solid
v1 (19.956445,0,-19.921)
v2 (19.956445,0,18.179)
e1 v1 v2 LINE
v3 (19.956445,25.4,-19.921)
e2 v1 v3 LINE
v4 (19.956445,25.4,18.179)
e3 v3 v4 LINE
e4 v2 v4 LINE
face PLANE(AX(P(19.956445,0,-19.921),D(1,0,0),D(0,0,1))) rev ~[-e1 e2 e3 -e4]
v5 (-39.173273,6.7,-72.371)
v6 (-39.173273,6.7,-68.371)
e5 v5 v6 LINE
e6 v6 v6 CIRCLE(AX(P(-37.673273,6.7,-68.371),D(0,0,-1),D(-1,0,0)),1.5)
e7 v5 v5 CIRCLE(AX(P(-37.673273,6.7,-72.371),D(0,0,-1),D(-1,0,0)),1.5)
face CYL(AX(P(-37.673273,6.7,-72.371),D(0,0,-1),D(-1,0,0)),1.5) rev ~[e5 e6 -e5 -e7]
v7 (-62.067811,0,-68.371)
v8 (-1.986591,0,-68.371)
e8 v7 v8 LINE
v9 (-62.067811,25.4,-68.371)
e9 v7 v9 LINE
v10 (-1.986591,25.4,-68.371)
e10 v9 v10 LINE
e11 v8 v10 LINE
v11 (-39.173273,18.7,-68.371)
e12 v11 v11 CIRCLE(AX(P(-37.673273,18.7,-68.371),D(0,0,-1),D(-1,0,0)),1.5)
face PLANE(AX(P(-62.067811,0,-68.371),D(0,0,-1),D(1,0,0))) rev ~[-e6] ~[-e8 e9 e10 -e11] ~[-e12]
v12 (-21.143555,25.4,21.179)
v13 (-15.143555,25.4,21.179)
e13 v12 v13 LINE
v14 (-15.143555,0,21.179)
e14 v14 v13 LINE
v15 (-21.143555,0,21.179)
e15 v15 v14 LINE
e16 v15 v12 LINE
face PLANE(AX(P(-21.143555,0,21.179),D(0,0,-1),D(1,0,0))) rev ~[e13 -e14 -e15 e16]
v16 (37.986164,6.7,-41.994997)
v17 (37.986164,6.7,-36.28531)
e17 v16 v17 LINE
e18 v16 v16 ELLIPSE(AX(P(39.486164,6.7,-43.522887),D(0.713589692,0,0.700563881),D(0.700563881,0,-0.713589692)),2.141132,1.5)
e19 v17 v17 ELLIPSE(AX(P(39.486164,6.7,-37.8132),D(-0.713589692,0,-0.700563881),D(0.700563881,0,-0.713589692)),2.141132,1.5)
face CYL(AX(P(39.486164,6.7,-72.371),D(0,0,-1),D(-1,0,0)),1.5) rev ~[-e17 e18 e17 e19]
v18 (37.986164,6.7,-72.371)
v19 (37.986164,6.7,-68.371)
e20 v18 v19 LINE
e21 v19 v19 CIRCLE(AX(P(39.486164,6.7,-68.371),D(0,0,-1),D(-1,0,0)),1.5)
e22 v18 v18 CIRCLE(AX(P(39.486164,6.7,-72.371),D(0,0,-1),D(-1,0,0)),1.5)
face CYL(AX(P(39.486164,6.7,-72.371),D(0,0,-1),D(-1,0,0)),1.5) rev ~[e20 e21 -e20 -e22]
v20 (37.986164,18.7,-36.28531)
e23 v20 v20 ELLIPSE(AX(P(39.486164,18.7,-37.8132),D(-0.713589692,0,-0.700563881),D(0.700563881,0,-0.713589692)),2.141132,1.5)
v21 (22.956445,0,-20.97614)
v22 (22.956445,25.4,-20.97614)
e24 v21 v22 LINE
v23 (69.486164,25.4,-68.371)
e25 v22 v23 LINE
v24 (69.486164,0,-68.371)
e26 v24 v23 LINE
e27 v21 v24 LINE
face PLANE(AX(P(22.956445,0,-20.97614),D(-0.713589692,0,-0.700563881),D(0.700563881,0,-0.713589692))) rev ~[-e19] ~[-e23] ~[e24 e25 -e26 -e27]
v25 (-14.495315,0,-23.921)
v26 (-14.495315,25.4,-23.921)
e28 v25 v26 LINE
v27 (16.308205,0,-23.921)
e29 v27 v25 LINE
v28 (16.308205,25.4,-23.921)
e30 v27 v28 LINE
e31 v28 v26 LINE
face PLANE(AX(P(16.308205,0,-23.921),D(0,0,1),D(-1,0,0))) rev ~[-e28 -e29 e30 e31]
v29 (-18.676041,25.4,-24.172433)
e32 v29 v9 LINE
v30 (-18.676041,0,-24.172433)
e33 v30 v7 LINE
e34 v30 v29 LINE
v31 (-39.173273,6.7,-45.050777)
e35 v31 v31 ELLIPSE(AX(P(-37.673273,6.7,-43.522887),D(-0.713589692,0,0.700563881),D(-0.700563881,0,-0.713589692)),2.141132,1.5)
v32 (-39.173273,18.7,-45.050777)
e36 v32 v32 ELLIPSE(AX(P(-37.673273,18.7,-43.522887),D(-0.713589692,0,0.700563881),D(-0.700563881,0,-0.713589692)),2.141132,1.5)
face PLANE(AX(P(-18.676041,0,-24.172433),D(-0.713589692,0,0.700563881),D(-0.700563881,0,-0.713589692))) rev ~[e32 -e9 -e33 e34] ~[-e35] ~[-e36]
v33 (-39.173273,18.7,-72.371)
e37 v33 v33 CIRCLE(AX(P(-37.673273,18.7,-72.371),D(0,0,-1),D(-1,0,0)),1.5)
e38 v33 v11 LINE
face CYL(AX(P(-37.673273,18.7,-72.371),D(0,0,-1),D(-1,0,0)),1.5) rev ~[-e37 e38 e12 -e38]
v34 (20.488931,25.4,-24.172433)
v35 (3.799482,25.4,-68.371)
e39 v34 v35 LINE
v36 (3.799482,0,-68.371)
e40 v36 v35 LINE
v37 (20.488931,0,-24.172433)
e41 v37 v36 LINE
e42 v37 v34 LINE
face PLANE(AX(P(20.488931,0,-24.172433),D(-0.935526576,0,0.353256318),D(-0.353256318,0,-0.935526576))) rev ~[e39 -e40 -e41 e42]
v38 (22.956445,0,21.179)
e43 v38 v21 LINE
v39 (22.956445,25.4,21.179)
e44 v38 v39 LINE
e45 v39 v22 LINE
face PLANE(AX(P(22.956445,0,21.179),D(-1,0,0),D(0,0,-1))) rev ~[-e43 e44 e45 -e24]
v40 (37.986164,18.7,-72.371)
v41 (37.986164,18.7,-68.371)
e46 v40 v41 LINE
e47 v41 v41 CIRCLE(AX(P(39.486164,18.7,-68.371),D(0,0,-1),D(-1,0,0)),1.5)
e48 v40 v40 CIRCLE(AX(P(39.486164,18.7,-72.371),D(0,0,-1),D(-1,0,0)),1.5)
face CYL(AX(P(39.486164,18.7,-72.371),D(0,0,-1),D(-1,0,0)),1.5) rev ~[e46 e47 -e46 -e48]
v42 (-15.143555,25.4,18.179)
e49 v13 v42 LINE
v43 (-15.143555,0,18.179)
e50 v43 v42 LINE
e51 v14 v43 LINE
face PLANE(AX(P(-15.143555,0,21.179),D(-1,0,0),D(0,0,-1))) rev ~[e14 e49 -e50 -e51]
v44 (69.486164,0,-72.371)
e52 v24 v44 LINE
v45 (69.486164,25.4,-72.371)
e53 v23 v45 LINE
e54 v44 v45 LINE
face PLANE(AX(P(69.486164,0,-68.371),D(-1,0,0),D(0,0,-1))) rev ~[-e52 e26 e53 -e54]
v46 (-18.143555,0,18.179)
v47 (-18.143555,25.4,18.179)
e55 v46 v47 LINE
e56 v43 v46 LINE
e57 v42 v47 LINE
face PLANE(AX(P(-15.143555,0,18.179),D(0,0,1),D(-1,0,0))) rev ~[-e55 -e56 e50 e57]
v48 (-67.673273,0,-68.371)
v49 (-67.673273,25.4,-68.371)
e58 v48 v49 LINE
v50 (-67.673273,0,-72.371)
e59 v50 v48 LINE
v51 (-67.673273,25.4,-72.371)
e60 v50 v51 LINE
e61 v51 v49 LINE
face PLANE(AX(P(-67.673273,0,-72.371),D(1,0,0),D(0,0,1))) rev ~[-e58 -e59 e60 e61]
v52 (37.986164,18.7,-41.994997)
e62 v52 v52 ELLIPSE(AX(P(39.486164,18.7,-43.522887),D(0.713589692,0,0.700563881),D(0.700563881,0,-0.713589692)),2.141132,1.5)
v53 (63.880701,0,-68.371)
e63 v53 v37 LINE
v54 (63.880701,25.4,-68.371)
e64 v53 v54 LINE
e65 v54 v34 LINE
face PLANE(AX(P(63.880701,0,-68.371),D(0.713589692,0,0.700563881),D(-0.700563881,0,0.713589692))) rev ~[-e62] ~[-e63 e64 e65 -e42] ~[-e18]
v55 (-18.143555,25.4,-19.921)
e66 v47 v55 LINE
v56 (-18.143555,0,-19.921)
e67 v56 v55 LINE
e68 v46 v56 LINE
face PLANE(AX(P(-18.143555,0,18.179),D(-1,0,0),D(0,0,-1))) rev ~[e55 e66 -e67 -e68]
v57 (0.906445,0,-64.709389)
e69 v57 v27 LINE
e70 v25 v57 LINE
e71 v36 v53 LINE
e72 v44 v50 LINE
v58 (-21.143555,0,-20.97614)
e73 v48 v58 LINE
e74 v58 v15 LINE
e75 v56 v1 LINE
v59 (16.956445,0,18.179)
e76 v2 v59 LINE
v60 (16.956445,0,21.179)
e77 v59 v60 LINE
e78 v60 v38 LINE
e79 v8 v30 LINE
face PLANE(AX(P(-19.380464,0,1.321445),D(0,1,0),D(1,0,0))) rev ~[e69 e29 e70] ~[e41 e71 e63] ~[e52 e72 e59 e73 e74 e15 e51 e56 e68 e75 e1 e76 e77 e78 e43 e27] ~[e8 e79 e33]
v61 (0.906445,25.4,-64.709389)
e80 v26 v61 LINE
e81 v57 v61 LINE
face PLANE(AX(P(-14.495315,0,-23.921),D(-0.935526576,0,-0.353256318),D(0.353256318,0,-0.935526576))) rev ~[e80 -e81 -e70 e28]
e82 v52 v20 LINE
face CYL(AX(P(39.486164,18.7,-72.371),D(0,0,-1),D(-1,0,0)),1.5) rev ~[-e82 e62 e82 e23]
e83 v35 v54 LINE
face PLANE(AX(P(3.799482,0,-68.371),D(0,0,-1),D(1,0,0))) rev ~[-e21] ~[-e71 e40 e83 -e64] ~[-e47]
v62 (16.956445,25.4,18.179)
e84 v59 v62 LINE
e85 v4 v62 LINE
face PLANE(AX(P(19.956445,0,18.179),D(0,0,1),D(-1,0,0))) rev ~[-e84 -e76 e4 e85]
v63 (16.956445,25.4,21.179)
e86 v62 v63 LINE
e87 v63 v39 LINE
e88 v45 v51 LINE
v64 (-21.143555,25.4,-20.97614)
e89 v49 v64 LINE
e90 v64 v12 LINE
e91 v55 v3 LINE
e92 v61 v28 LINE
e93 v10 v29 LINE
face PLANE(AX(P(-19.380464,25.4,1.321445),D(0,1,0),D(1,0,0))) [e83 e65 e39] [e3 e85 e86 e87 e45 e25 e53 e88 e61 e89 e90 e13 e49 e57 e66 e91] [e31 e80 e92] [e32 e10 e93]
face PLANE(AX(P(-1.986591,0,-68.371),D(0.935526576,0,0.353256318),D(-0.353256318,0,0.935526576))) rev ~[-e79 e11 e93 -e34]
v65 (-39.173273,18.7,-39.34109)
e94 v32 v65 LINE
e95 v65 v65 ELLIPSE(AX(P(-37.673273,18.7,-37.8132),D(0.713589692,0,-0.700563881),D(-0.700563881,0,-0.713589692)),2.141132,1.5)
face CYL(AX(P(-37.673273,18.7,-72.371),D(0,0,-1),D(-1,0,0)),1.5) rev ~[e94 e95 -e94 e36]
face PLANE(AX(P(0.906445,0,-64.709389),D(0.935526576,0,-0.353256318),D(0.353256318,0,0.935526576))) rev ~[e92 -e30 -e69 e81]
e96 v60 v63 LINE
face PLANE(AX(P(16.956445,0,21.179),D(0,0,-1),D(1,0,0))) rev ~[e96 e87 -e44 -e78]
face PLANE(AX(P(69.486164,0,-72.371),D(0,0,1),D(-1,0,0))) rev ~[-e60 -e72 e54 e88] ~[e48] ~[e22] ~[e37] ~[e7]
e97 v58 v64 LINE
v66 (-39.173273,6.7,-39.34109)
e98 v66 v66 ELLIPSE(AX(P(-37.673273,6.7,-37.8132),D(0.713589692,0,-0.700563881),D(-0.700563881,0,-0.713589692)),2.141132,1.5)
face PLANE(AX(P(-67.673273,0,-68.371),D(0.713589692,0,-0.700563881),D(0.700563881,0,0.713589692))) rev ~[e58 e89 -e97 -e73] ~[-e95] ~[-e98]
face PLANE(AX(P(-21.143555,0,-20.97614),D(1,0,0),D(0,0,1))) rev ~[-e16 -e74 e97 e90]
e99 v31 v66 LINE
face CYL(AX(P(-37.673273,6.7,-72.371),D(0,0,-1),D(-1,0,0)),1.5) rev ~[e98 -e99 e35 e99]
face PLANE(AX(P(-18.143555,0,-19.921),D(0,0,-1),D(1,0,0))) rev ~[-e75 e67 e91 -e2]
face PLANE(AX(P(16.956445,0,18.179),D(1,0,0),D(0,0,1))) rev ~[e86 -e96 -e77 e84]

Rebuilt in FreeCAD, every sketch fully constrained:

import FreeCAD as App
import Part
import Sketcher
Q = App.Units.Quantity

doc = App.newDocument("Part")
body = doc.addObject("PartDesign::Body", "Body")

# Sketch on XZ plane
sketch1 = body.newObject("Sketcher::SketchObject", "Sketch")
sketch1.AttachmentSupport = (doc.getObject("XZ_Plane"), [""])
sketch1.MapMode = "FlatFace"
sketch1.addGeometry([
    Part.LineSegment(App.Vector(-67.7, -72.4, 0), App.Vector(-67.7, -68.4, 0)),  # 0
    Part.LineSegment(App.Vector(-67.7, -68.4, 0), App.Vector(-21.1, -21, 0)),  # 1
    Part.LineSegment(App.Vector(-21.1, -21, 0), App.Vector(-21.1, 21.2, 0)),  # 2
    Part.LineSegment(App.Vector(-21.1, 21.2, 0), App.Vector(-15.1, 21.2, 0)),  # 3
    Part.LineSegment(App.Vector(-15.1, 21.2, 0), App.Vector(-15.1, 18.2, 0)),  # 4
    Part.LineSegment(App.Vector(-15.1, 18.2, 0), App.Vector(-18.1, 18.2, 0)),  # 5
    Part.LineSegment(App.Vector(-18.1, 18.2, 0), App.Vector(-18.1, -19.9, 0)),  # 6
    Part.LineSegment(App.Vector(-18.1, -19.9, 0), App.Vector(20, -19.9, 0)),  # 7
    Part.LineSegment(App.Vector(20, -19.9, 0), App.Vector(20, 18.2, 0)),  # 8
    Part.LineSegment(App.Vector(20, 18.2, 0), App.Vector(17, 18.2, 0)),  # 9
    Part.LineSegment(App.Vector(17, 18.2, 0), App.Vector(17, 21.2, 0)),  # 10
    Part.LineSegment(App.Vector(17, 21.2, 0), App.Vector(23, 21.2, 0)),  # 11
    Part.LineSegment(App.Vector(23, 21.2, 0), App.Vector(23, -21, 0)),  # 12
    Part.LineSegment(App.Vector(23, -21, 0), App.Vector(69.5, -68.4, 0)),  # 13
    Part.LineSegment(App.Vector(69.5, -68.4, 0), App.Vector(69.5, -72.4, 0)),  # 14
    Part.LineSegment(App.Vector(69.5, -72.4, 0), App.Vector(-67.7, -72.4, 0)),  # 15
    Part.LineSegment(App.Vector(-14.5, -23.9, 0), App.Vector(0.9, -64.7, 0)),  # 16
    Part.LineSegment(App.Vector(0.9, -64.7, 0), App.Vector(16.3, -23.9, 0)),  # 17
    Part.LineSegment(App.Vector(16.3, -23.9, 0), App.Vector(-14.5, -23.9, 0)),  # 18
    Part.LineSegment(App.Vector(-18.7, -24.2, 0), App.Vector(-62.1, -68.4, 0)),  # 19
    Part.LineSegment(App.Vector(-62.1, -68.4, 0), App.Vector(-2, -68.4, 0)),  # 20
    Part.LineSegment(App.Vector(-2, -68.4, 0), App.Vector(-18.7, -24.2, 0)),  # 21
    Part.LineSegment(App.Vector(63.9, -68.4, 0), App.Vector(20.5, -24.2, 0)),  # 22
    Part.LineSegment(App.Vector(20.5, -24.2, 0), App.Vector(3.8, -68.4, 0)),  # 23
    Part.LineSegment(App.Vector(3.8, -68.4, 0), App.Vector(63.9, -68.4, 0)),  # 24
], False)
sketch1.addConstraint([
    Sketcher.Constraint("Coincident", 0, 2, 1, 1),
    Sketcher.Constraint("Coincident", 1, 2, 2, 1),
    Sketcher.Constraint("Coincident", 2, 2, 3, 1),
    Sketcher.Constraint("Coincident", 3, 2, 4, 1),
    Sketcher.Constraint("Coincident", 4, 2, 5, 1),
    Sketcher.Constraint("Coincident", 5, 2, 6, 1),
    Sketcher.Constraint("Coincident", 6, 2, 7, 1),
    Sketcher.Constraint("Coincident", 7, 2, 8, 1),
    Sketcher.Constraint("Coincident", 8, 2, 9, 1),
    Sketcher.Constraint("Coincident", 9, 2, 10, 1),
    Sketcher.Constraint("Coincident", 10, 2, 11, 1),
    Sketcher.Constraint("Coincident", 11, 2, 12, 1),
    Sketcher.Constraint("Coincident", 12, 2, 13, 1),
    Sketcher.Constraint("Coincident", 13, 2, 14, 1),
    Sketcher.Constraint("Coincident", 14, 2, 15, 1),
    Sketcher.Constraint("Coincident", 15, 2, 0, 1),
    Sketcher.Constraint("Coincident", 16, 2, 17, 1),
    Sketcher.Constraint("Coincident", 17, 2, 18, 1),
    Sketcher.Constraint("Coincident", 18, 2, 16, 1),
    Sketcher.Constraint("Coincident", 19, 2, 20, 1),
    Sketcher.Constraint("Coincident", 20, 2, 21, 1),
    Sketcher.Constraint("Coincident", 21, 2, 19, 1),
    Sketcher.Constraint("Coincident", 22, 2, 23, 1),
    Sketcher.Constraint("Coincident", 23, 2, 24, 1),
    Sketcher.Constraint("Coincident", 24, 2, 22, 1),
    Sketcher.Constraint("Vertical", 0),
    Sketcher.Constraint("Vertical", 2),
    Sketcher.Constraint("Horizontal", 3),
    Sketcher.Constraint("Vertical", 4),
    Sketcher.Constraint("Horizontal", 5),
    Sketcher.Constraint("Vertical", 6),
    Sketcher.Constraint("Horizontal", 7),
    Sketcher.Constraint("Vertical", 8),
    Sketcher.Constraint("Horizontal", 9),
    Sketcher.Constraint("Vertical", 10),
    Sketcher.Constraint("Horizontal", 11),
    Sketcher.Constraint("Vertical", 12),
    Sketcher.Constraint("Vertical", 14),
    Sketcher.Constraint("Horizontal", 15),
    Sketcher.Constraint("Horizontal", 18),
    Sketcher.Constraint("Horizontal", 20),
    Sketcher.Constraint("Horizontal", 24),
    Sketcher.Constraint("Parallel", 1, 19),
    Sketcher.Constraint("Parallel", 16, 21),
    Sketcher.Constraint("Parallel", 13, 22),
    Sketcher.Constraint("Parallel", 17, 23),
    Sketcher.Constraint("Horizontal", 5, 2, 8, 2),
    Sketcher.Constraint("Horizontal", 3, 2, 10, 2),
    Sketcher.Constraint("Horizontal", 1, 2, 12, 2),
    Sketcher.Constraint("Horizontal", 0, 2, 13, 2),
    Sketcher.Constraint("Horizontal", 13, 2, 19, 2),
    Sketcher.Constraint("Horizontal", 21, 2, 22, 2),
    Sketcher.Constraint("Horizontal", 20, 2, 23, 2),
    Sketcher.Constraint("Equal", 5, 9),
    Sketcher.Constraint("Equal", 3, 11),
    Sketcher.Constraint("Equal", 20, 24),
    Sketcher.Constraint("Equal", 9, 4),
    Sketcher.Constraint("Equal", 7, 6),
    Sketcher.Constraint("Equal", 1, 13),
    Sketcher.Constraint("DistanceX", 3, 1, 3, 2, Q("6 mm")),
    Sketcher.Constraint("DistanceX", 5, 2, 5, 1, Q("3 mm")),
    Sketcher.Constraint("DistanceY", 0, 1, 0, 2, Q("4 mm")),
    Sketcher.Constraint("DistanceX", 7, 1, 7, 2, Q("38.1 mm")),
    Sketcher.Constraint("DistanceY", 17, 2, 7, 2, Q("4 mm")),
    Sketcher.Constraint("DistanceY", 0, 2, 2, 2, Q("89.55 mm")),
    Sketcher.Constraint("DistanceX", 6, 2, 16, 2, Q("19.05 mm")),
    Sketcher.Constraint("DistanceY", 0, 2, -1, 1, Q("68.371 mm")),
    Sketcher.Constraint("DistanceX", 18, 2, 18, 1, Q("30.80352 mm")),
    Sketcher.Constraint("DistanceX", 20, 1, 20, 2, Q("60.08122 mm")),
    Sketcher.Constraint("DistanceY", 2, 1, 2, 2, Q("42.15514 mm")),
    Sketcher.Constraint("DistanceX", -1, 1, 24, 2, Q("63.880701 mm")),
    Sketcher.Constraint("Distance", 16, Q("43.599391 mm")),
    Sketcher.Constraint("Distance", 19, Q("61.938349 mm")),
    Sketcher.Constraint("DistanceX", 19, 2, -1, 1, Q("62.067811 mm")),
    Sketcher.Constraint("DistanceX", 0, 2, -1, 1, Q("67.673273 mm")),
])
pad1 = body.newObject("PartDesign::Pad", "Pad")
pad1.Profile = sketch1
pad1.Length = 25.4
pad1.Reversed = True

# Sketch on XY plane
sketch2 = body.newObject("Sketcher::SketchObject", "Sketch001")
sketch2.AttachmentSupport = (doc.getObject("XY_Plane"), [""])
sketch2.MapMode = "FlatFace"
sketch2.AttachmentOffset = App.Placement(App.Vector(0, 0, -72.371), App.Rotation())
sketch2.addGeometry([
    Part.Circle(App.Vector(-37.7, 6.7, 0), App.Vector(0, 0, 1), 1.5),
    Part.Circle(App.Vector(-37.7, 18.7, 0), App.Vector(0, 0, 1), 1.5),
    Part.Circle(App.Vector(39.5, 18.7, 0), App.Vector(0, 0, 1), 1.5),
    Part.Circle(App.Vector(39.5, 6.7, 0), App.Vector(0, 0, 1), 1.5),
], False)
sketch2.addConstraint([
    Sketcher.Constraint("Equal", 0, 1),
    Sketcher.Constraint("Equal", 1, 2),
    Sketcher.Constraint("Equal", 2, 3),
    Sketcher.Constraint("Horizontal", 1, 3, 2, 3),
    Sketcher.Constraint("Horizontal", 0, 3, 3, 3),
    Sketcher.Constraint("Vertical", 0, 3, 1, 3),
    Sketcher.Constraint("Vertical", 2, 3, 3, 3),
    Sketcher.Constraint("Diameter", 0, Q("3 mm")),
    Sketcher.Constraint("DistanceY", 0, 3, 1, 3, Q("12 mm")),
    Sketcher.Constraint("DistanceY", -1, 1, 0, 3, Q("6.7 mm")),
    Sketcher.Constraint("DistanceX", 0, 3, -1, 1, Q("37.673273 mm")),
    Sketcher.Constraint("DistanceX", -1, 1, 2, 3, Q("39.486164 mm")),
])
pocket1 = body.newObject("PartDesign::Pocket", "Pocket")
pocket1.Profile = sketch2
pocket1.Type = "ThroughAll"
pocket1.Reversed = True

doc.recompute()
